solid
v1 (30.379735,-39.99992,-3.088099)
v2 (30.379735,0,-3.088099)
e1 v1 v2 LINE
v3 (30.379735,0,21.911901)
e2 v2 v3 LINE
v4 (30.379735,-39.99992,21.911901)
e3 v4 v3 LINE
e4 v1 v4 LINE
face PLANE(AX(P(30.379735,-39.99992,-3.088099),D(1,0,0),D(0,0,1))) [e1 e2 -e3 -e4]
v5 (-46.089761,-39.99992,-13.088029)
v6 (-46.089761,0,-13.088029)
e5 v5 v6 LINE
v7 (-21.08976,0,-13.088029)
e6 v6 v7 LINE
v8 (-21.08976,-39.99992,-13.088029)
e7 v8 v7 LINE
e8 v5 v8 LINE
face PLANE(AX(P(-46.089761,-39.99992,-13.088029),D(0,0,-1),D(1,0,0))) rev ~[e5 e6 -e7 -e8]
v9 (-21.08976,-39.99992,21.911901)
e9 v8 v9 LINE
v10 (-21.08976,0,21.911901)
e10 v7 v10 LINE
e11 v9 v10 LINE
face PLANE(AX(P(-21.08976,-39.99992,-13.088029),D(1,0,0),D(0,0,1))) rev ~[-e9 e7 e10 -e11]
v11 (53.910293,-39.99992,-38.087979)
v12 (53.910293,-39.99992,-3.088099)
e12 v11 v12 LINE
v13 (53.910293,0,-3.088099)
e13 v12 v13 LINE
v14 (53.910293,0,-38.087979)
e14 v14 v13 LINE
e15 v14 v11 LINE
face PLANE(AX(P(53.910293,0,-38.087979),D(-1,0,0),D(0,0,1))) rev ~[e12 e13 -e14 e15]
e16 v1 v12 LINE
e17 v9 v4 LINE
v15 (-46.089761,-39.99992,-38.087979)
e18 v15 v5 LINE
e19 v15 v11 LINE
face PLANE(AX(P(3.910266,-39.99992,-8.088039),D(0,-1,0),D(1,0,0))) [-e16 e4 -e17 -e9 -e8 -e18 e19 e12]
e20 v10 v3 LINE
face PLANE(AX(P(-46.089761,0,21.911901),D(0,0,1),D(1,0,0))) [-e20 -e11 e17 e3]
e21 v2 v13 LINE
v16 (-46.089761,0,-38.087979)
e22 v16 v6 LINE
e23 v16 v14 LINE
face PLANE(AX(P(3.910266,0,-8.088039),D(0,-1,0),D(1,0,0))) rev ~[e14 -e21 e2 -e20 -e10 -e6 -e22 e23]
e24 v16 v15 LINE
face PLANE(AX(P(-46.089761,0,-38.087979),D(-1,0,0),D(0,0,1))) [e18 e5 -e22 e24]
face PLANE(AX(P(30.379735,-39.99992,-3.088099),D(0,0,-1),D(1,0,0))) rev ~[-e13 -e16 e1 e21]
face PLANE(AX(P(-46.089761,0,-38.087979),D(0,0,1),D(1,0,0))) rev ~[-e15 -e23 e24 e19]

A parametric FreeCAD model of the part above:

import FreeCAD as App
import Part
import Sketcher
from FreeCAD import Vector
Q = App.Units.Quantity


def add_polygon(sketch, points):
    """Adds a closed chain of lines whose ends are joined by coincident constraints."""
    first, n = sketch.GeometryCount, len(points)
    for a, b in zip(points, points[1:] + points[:1]):
        sketch.addGeometry(Part.LineSegment(App.Vector(*a, 0), App.Vector(*b, 0)), False)
    for i in range(n):
        sketch.addConstraint(Sketcher.Constraint("Coincident", first + i, 2, first + (i + 1) % n, 1))

doc = App.newDocument("Part")
body = doc.addObject("PartDesign::Body", "Body")

sketch1 = doc.addObject("Sketcher::SketchObject", "Sketch")
body.addObject(sketch1)
sketch1.AttachmentSupport = (doc.XZ_Plane, [""])
sketch1.MapMode = "FlatFace"
add_polygon(sketch1, [(-46, 22), (-46, -38), (54, -38), (54, 22)])
sketch1.addConstraint([
    Sketcher.Constraint("Vertical", 0),
    Sketcher.Constraint("Horizontal", 1),
    Sketcher.Constraint("Vertical", 2),
    Sketcher.Constraint("Horizontal", 3),
    Sketcher.Constraint("DistanceY", 0, 2, 0, 1, Q("59.99988 mm")),
    Sketcher.Constraint("DistanceY", -1, 1, 2, 2, Q("21.911901 mm")),
    Sketcher.Constraint("DistanceX", 1, 1, 1, 2, Q("100.000054 mm")),
    Sketcher.Constraint("DistanceX", 0, 2, -1, 1, Q("46.089761 mm")),
])
pad1 = doc.addObject("PartDesign::Pad", "Pad")
body.addObject(pad1)
pad1.Profile = sketch1
pad1.Length = 39.99992

sketch2 = doc.addObject("Sketcher::SketchObject", "Sketch001")
body.addObject(sketch2)
sketch2.AttachmentSupport = (doc.XZ_Plane, [""])
sketch2.MapMode = "FlatFace"
sketch2.AttachmentOffset = App.Placement(Vector(0, 0, 39.99992), App.Rotation())
add_polygon(sketch2, [(30, 22), (30, -3), (54, -3), (54, 22)])
add_polygon(sketch2, [(-46, 22), (-46, -13), (-21, -13), (-21, 22)])
sketch2.addConstraint([
    Sketcher.Constraint("Vertical", 0),
    Sketcher.Constraint("Horizontal", 1),
    Sketcher.Constraint("Vertical", 2),
    Sketcher.Constraint("Horizontal", 3),
    Sketcher.Constraint("Vertical", 4),
    Sketcher.Constraint("Horizontal", 5),
    Sketcher.Constraint("Vertical", 6),
    Sketcher.Constraint("Horizontal", 7),
    Sketcher.Constraint("Horizontal", 3, 2, 6, 2),
    Sketcher.Constraint("Equal", 7, 0),
    Sketcher.Constraint("DistanceX", 5, 1, 5, 2, Q("25.000001 mm")),
    Sketcher.Constraint("DistanceY", 4, 2, 4, 1, Q("34.99993 mm")),
    Sketcher.Constraint("DistanceY", 0, 2, -1, 1, Q("3.088099 mm")),
    Sketcher.Constraint("DistanceX", 1, 1, 1, 2, Q("23.530558 mm")),
    Sketcher.Constraint("DistanceX", 4, 2, -1, 1, Q("46.089761 mm")),
    Sketcher.Constraint("DistanceX", -1, 1, 0, 2, Q("30.379735 mm")),
])
pocket1 = doc.addObject("PartDesign::Pocket", "Pocket")
body.addObject(pocket1)
pocket1.Profile = sketch2
pocket1.Type = "ThroughAll"

doc.recompute()
